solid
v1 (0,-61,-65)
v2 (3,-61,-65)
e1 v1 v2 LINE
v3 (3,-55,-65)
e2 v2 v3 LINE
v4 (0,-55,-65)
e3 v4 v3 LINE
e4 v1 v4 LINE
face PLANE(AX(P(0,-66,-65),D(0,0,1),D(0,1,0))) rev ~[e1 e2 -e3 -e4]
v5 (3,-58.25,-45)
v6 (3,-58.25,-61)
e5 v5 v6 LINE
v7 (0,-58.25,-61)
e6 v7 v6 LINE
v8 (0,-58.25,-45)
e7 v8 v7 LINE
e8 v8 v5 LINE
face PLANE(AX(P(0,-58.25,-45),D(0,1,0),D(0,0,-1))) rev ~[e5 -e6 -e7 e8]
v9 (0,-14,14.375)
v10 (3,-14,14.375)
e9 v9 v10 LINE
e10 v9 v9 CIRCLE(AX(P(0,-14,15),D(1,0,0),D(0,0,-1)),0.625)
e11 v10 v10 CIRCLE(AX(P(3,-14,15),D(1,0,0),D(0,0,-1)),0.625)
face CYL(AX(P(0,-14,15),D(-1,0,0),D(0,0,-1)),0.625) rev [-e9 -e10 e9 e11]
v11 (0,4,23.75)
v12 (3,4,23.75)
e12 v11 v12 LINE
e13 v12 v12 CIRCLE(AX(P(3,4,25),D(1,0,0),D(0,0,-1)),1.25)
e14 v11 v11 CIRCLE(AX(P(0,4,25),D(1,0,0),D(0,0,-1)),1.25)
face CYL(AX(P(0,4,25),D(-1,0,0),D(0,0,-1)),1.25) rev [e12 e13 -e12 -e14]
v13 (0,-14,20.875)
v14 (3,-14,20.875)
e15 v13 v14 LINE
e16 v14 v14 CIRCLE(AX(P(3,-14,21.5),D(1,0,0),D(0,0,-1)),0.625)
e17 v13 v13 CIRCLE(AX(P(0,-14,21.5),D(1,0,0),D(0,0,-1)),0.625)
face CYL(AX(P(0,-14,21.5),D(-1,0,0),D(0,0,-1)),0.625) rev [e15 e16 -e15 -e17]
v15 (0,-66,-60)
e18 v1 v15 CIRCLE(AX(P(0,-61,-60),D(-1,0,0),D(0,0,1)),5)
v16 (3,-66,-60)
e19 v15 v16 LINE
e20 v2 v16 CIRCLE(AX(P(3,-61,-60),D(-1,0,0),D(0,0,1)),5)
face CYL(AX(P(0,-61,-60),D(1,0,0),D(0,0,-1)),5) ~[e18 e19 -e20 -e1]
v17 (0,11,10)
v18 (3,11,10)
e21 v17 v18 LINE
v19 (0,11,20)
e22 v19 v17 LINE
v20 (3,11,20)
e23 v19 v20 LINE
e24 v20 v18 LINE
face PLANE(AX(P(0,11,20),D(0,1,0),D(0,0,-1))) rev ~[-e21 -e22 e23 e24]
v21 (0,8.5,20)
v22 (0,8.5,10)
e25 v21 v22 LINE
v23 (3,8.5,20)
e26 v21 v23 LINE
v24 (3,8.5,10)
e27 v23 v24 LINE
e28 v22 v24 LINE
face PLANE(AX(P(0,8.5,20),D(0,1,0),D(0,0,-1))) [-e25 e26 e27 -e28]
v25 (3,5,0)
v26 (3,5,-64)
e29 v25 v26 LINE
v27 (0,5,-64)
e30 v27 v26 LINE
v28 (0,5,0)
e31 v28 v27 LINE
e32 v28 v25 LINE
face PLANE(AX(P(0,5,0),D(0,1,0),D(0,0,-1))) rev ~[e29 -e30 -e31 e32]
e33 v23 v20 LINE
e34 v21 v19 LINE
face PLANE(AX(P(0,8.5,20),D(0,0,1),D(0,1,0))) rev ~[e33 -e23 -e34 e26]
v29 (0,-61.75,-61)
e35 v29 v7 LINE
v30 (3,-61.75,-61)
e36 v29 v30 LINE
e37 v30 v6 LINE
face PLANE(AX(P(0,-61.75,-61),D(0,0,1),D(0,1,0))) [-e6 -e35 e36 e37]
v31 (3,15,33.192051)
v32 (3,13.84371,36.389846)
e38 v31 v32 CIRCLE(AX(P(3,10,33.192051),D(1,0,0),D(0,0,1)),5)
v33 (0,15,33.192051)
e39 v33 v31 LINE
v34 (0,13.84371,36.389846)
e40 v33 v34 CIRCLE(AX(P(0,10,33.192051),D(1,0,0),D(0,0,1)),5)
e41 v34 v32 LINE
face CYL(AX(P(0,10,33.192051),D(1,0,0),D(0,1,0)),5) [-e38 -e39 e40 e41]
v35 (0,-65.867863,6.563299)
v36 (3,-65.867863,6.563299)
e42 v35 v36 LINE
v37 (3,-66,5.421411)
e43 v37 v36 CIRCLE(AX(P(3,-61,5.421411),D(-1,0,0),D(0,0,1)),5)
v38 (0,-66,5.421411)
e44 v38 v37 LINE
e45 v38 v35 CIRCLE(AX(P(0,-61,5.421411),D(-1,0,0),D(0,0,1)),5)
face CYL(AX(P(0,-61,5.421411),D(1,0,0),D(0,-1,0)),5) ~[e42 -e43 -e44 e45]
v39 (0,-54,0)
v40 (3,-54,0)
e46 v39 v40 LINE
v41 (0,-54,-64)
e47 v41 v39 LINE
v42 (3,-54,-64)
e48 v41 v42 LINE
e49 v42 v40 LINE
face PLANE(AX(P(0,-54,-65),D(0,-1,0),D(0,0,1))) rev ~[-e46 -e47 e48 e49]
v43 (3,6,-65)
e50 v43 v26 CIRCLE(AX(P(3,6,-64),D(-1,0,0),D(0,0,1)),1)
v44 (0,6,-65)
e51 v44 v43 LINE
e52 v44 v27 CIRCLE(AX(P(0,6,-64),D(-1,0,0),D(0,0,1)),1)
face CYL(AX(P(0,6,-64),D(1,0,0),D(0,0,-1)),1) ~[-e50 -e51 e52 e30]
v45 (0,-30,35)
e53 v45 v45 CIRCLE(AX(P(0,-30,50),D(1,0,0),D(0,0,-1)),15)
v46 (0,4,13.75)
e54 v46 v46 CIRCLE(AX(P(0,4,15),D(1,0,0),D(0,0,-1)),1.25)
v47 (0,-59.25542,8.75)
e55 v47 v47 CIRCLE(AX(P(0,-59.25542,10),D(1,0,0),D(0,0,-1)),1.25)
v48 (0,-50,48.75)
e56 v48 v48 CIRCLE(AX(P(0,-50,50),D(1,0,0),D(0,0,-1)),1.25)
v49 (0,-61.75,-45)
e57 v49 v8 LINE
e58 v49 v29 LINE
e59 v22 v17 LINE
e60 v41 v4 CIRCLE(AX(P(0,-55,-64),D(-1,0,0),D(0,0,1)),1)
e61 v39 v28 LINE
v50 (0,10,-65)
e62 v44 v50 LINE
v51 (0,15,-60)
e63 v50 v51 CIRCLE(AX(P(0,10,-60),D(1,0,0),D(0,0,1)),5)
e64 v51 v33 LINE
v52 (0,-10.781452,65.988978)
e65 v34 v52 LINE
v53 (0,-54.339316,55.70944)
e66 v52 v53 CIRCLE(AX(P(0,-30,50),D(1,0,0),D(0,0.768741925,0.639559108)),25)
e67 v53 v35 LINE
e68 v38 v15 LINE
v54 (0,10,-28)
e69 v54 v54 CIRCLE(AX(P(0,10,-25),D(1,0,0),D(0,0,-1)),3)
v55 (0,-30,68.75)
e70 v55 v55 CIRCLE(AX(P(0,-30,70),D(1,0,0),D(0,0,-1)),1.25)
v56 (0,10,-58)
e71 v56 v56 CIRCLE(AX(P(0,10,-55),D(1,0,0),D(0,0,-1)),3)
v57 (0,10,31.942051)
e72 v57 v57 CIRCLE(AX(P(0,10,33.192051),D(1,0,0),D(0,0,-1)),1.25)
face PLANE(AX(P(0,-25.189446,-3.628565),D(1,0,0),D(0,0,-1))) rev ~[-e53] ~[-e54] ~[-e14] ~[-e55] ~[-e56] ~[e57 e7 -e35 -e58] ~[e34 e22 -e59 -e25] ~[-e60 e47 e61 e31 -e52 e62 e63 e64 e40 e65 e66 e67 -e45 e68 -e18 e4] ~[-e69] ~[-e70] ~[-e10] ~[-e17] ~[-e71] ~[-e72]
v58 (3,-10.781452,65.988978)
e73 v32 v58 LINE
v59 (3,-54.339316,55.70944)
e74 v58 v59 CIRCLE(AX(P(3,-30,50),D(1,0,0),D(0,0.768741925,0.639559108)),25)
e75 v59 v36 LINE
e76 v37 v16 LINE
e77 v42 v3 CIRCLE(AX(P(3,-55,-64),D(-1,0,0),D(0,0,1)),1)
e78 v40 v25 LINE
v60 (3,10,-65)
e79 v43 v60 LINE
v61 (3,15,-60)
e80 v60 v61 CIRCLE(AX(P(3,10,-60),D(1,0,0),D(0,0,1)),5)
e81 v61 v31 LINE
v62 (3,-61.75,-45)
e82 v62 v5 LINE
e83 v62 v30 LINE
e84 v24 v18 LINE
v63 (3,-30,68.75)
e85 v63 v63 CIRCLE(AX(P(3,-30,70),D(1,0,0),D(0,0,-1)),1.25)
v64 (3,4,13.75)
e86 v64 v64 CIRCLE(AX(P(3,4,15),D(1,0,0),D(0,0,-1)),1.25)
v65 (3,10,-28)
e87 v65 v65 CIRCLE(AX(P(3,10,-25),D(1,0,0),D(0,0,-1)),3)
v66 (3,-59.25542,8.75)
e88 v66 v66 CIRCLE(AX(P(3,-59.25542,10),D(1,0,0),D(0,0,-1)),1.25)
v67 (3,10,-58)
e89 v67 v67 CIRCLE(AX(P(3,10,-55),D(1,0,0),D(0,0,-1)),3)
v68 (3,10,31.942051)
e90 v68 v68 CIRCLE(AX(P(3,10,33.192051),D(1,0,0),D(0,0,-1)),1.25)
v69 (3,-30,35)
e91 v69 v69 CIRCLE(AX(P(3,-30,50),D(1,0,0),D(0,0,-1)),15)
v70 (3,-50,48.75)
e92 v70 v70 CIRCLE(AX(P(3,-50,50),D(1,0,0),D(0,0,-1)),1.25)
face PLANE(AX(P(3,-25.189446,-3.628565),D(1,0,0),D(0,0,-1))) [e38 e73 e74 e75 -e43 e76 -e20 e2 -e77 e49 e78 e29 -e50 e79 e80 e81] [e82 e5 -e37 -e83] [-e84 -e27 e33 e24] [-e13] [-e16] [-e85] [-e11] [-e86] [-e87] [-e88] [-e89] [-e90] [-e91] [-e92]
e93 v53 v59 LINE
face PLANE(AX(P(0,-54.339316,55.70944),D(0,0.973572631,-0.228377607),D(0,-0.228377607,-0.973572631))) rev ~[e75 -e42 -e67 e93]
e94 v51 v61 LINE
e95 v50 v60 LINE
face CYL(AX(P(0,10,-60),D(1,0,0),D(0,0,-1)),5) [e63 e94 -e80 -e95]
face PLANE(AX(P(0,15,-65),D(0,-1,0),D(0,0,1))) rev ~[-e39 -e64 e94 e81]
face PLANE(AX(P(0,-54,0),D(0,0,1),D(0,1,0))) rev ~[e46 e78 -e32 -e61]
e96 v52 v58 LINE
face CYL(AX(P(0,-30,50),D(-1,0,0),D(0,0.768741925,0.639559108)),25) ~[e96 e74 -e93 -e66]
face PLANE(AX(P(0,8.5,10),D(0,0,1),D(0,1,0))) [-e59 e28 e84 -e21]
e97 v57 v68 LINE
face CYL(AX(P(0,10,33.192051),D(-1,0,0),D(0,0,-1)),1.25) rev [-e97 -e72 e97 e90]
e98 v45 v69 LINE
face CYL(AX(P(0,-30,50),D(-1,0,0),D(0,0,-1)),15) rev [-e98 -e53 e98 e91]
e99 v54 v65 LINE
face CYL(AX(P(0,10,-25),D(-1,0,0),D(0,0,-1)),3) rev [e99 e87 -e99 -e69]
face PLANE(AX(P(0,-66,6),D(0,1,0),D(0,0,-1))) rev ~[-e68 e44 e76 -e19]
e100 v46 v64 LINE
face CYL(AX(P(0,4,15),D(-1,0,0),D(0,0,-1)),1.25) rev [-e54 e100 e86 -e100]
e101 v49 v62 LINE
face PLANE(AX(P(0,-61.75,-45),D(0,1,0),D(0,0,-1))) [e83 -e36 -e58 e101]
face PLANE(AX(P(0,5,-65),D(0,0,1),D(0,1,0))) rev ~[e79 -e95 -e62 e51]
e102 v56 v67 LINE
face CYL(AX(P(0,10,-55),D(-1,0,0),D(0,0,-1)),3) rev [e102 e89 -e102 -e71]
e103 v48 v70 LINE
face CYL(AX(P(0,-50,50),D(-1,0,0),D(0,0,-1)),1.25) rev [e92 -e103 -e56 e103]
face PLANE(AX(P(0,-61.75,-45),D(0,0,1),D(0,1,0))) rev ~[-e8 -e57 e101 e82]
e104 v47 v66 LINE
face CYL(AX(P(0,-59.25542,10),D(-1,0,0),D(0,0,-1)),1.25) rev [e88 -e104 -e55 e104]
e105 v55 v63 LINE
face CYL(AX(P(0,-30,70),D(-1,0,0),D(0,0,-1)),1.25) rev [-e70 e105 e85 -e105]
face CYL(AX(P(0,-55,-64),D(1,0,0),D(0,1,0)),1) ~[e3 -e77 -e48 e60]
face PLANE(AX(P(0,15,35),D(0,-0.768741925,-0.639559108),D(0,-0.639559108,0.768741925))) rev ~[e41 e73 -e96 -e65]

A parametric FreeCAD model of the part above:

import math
import FreeCAD as App
import Part
import Sketcher

V = App.Vector
Q = App.Units.Quantity


def edges_at(feature, points):
    """Names of the edges that pass closest to the given points."""
    edges = feature.Shape.Edges
    near = lambda p: min(range(len(edges)), key=lambda i: edges[i].distToShape(Part.Vertex(*p))[0])
    return sorted({f"Edge{near(p) + 1}" for p in points})


def add_polygon(sketch, points):
    """Adds a closed chain of lines whose ends are joined by coincident constraints."""
    first, n = sketch.GeometryCount, len(points)
    for a, b in zip(points, points[1:] + points[:1]):
        sketch.addGeometry(Part.LineSegment(App.Vector(*a, 0), App.Vector(*b, 0)), False)
    for i in range(n):
        sketch.addConstraint(Sketcher.Constraint("Coincident", first + i, 2, first + (i + 1) % n, 1))

doc = App.newDocument("Part")
body = doc.addObject("PartDesign::Body", "Body")

# Sketch on YZ plane
sketch1 = body.newObject("Sketcher::SketchObject", "Sketch")
sketch1.AttachmentSupport = (doc.getObject("YZ_Plane"), [""])
sketch1.MapMode = "FlatFace"
sketch1.addGeometry(Part.LineSegment(V(5, 0, 0), V(5, -65, 0)), False)  # 0
sketch1.addGeometry(Part.LineSegment(V(5, -65, 0), V(15, -65, 0)), False)  # 1
sketch1.addGeometry(Part.LineSegment(V(15, -65, 0), V(15, 35, 0)), False)  # 2
sketch1.addGeometry(Part.LineSegment(V(15, 35, 0), V(-10.8, 66, 0)), False)  # 3
sketch1.addGeometry(Part.ArcOfCircle(Part.Circle(V(-30, 50, 0), V(0, 0, 1), 25), math.radians(40), math.radians(167)), False)  # 4
sketch1.addGeometry(Part.LineSegment(V(-54.3, 55.7, 0), V(-66, 6, 0)), False)  # 5
sketch1.addGeometry(Part.LineSegment(V(-66, 6, 0), V(-66, -65, 0)), False)  # 6
sketch1.addGeometry(Part.LineSegment(V(-66, -65, 0), V(-54, -65, 0)), False)  # 7
sketch1.addGeometry(Part.LineSegment(V(-54, -65, 0), V(-54, 0, 0)), False)  # 8
sketch1.addGeometry(Part.LineSegment(V(-54, 0, 0), V(5, 0, 0)), False)  # 9
sketch1.addGeometry(Part.Circle(V(-50, 50, 0), V(0, 0, 1), 1.2), False)  # 10
sketch1.addGeometry(Part.Circle(V(-59.3, 10, 0), V(0, 0, 1), 1.2), False)  # 11
sketch1.addGeometry(Part.Circle(V(-30, 70, 0), V(0, 0, 1), 1.2), False)  # 12
sketch1.addGeometry(Part.Circle(V(-30, 50, 0), V(0, 0, 1), 15), False)  # 13
add_polygon(sketch1, [(-61.8, -61), (-61.8, -45), (-58.2, -45), (-58.2, -61)])  # lines 14-17
sketch1.addGeometry(Part.Circle(V(-14, 21.5, 0), V(0, 0, 1), 0.6), False)  # 18
sketch1.addGeometry(Part.Circle(V(-14, 15, 0), V(0, 0, 1), 0.6), False)  # 19
sketch1.addGeometry(Part.Circle(V(4, 25, 0), V(0, 0, 1), 1.2), False)  # 20
sketch1.addGeometry(Part.Circle(V(10, 33.2, 0), V(0, 0, 1), 1.2), False)  # 21
sketch1.addGeometry(Part.Circle(V(4, 15, 0), V(0, 0, 1), 1.2), False)  # 22
add_polygon(sketch1, [(8.5, 10), (8.5, 20), (11, 20), (11, 10)])  # lines 23-26
sketch1.addGeometry(Part.Circle(V(10, -25, 0), V(0, 0, 1), 3), False)  # 27
sketch1.addGeometry(Part.Circle(V(10, -55, 0), V(0, 0, 1), 3), False)  # 28
sketch1.addConstraint([
    Sketcher.Constraint("Coincident", 0, 2, 1, 1),
    Sketcher.Constraint("Coincident", 1, 2, 2, 1),
    Sketcher.Constraint("Coincident", 2, 2, 3, 1),
    Sketcher.Constraint("Tangent", 3, 2, 4, 1),
    Sketcher.Constraint("Tangent", 4, 2, 5, 1),
    Sketcher.Constraint("Coincident", 5, 2, 6, 1),
    Sketcher.Constraint("Coincident", 6, 2, 7, 1),
    Sketcher.Constraint("Coincident", 7, 2, 8, 1),
    Sketcher.Constraint("Coincident", 8, 2, 9, 1),
    Sketcher.Constraint("Coincident", 9, 2, 0, 1),
    Sketcher.Constraint("Vertical", 0),
    Sketcher.Constraint("Horizontal", 1),
    Sketcher.Constraint("Vertical", 2),
    Sketcher.Constraint("Vertical", 6),
    Sketcher.Constraint("Horizontal", 7),
    Sketcher.Constraint("Vertical", 8),
    Sketcher.Constraint("Horizontal", 9),
    Sketcher.Constraint("Vertical", 14),
    Sketcher.Constraint("Horizontal", 15),
    Sketcher.Constraint("Vertical", 16),
    Sketcher.Constraint("Horizontal", 17),
    Sketcher.Constraint("Vertical", 23),
    Sketcher.Constraint("Horizontal", 24),
    Sketcher.Constraint("Vertical", 25),
    Sketcher.Constraint("Horizontal", 26),
    Sketcher.Constraint("Coincident", 13, 3, 4, 3),
    Sketcher.Constraint("Equal", 10, 11),
    Sketcher.Constraint("Equal", 11, 12),
    Sketcher.Constraint("Equal", 18, 19),
    Sketcher.Constraint("Equal", 12, 20),
    Sketcher.Constraint("Equal", 20, 21),
    Sketcher.Constraint("Equal", 21, 22),
    Sketcher.Constraint("Equal", 27, 28),
    Sketcher.Constraint("PointOnObject", 8, 2, -1),
    Sketcher.Constraint("Horizontal", 4, 3, 10, 3),
    Sketcher.Constraint("Horizontal", 19, 3, 22, 3),
    Sketcher.Constraint("Horizontal", 1, 2, 6, 2),
    Sketcher.Constraint("Horizontal", 11, 3, 25, 2),
    Sketcher.Constraint("Vertical", 4, 3, 12, 3),
    Sketcher.Constraint("Vertical", 18, 3, 19, 3),
    Sketcher.Constraint("Vertical", 20, 3, 22, 3),
    Sketcher.Constraint("Vertical", 21, 3, 27, 3),
    Sketcher.Constraint("Vertical", 27, 3, 28, 3),
    Sketcher.Constraint("Equal", 1, 23),
    Sketcher.Constraint("Diameter", 13, Q("30 mm")),
    Sketcher.Constraint("Diameter", 27, Q("6 mm")),
    Sketcher.Constraint("Radius", 4, Q("25 mm")),
    Sketcher.Constraint("Diameter", 10, Q("2.5 mm")),
    Sketcher.Constraint("Diameter", 18, Q("1.25 mm")),
    Sketcher.Constraint("DistanceX", 1, 1, 1, 2, Q("10 mm")),
    Sketcher.Constraint("DistanceX", 7, 1, 7, 2, Q("12 mm")),
    Sketcher.Constraint("DistanceX", 9, 1, 9, 2, Q("59 mm")),
    Sketcher.Constraint("DistanceY", 0, 2, 0, 1, Q("65 mm")),
    Sketcher.Constraint("DistanceY", 2, 1, 2, 2, Q("100 mm")),
    Sketcher.Constraint("DistanceY", 6, 2, 6, 1, Q("71 mm")),
    Sketcher.Constraint("DistanceY", 14, 1, 14, 2, Q("16 mm")),
    Sketcher.Constraint("DistanceX", 15, 1, 15, 2, Q("3.5 mm")),
    Sketcher.Constraint("DistanceX", 24, 1, 24, 2, Q("2.5 mm")),
    Sketcher.Constraint("DistanceX", 4, 3, -1, 1, Q("30 mm")),
    Sketcher.Constraint("DistanceY", -1, 1, 4, 3, Q("50 mm")),
    Sketcher.Constraint("DistanceX", 10, 3, -1, 1, Q("50 mm")),
    Sketcher.Constraint("DistanceY", -1, 1, 11, 3, Q("10 mm")),
    Sketcher.Constraint("DistanceY", -1, 1, 12, 3, Q("70 mm")),
    Sketcher.Constraint("DistanceX", 18, 3, -1, 1, Q("14 mm")),
    Sketcher.Constraint("DistanceY", -1, 1, 19, 3, Q("15 mm")),
    Sketcher.Constraint("DistanceX", -1, 1, 20, 3, Q("4 mm")),
    Sketcher.Constraint("DistanceY", -1, 1, 20, 3, Q("25 mm")),
    Sketcher.Constraint("DistanceX", -1, 1, 21, 3, Q("10 mm")),
    Sketcher.Constraint("DistanceY", 27, 3, -1, 1, Q("25 mm")),
    Sketcher.Constraint("DistanceY", 28, 3, -1, 1, Q("55 mm")),
    Sketcher.Constraint("DistanceX", -1, 1, 0, 2, Q("5 mm")),
    Sketcher.Constraint("DistanceY", 14, 2, -1, 1, Q("45 mm")),
    Sketcher.Constraint("DistanceX", -1, 1, 24, 2, Q("11 mm")),
    Sketcher.Constraint("DistanceY", -1, 1, 18, 3, Q("21.5 mm")),
    Sketcher.Constraint("DistanceX", 14, 2, -1, 1, Q("61.75 mm")),
    Sketcher.Constraint("DistanceX", 11, 3, -1, 1, Q("59.25542 mm")),
    Sketcher.Constraint("DistanceY", -1, 1, 21, 3, Q("33.192051 mm")),
])
pad1 = body.newObject("PartDesign::Pad", "Pad")
pad1.Profile = sketch1
pad1.Length = 3
doc.recompute()

fillet = body.newObject("PartDesign::Fillet", "Fillet")
fillet.Base = (pad1, edges_at(pad1, [
    (1.5, -66, -65),
    (1.5, -66, 6),
    (1.5, 15, 35),
    (1.5, 15, -65),
]))
fillet.Radius = 5
doc.recompute()

fillet2 = body.newObject("PartDesign::Fillet", "Fillet001")
fillet2.Base = (fillet, edges_at(fillet, [(1.5, 5, -65), (1.5, -54, -65)]))
fillet2.Radius = 1

doc.recompute()
